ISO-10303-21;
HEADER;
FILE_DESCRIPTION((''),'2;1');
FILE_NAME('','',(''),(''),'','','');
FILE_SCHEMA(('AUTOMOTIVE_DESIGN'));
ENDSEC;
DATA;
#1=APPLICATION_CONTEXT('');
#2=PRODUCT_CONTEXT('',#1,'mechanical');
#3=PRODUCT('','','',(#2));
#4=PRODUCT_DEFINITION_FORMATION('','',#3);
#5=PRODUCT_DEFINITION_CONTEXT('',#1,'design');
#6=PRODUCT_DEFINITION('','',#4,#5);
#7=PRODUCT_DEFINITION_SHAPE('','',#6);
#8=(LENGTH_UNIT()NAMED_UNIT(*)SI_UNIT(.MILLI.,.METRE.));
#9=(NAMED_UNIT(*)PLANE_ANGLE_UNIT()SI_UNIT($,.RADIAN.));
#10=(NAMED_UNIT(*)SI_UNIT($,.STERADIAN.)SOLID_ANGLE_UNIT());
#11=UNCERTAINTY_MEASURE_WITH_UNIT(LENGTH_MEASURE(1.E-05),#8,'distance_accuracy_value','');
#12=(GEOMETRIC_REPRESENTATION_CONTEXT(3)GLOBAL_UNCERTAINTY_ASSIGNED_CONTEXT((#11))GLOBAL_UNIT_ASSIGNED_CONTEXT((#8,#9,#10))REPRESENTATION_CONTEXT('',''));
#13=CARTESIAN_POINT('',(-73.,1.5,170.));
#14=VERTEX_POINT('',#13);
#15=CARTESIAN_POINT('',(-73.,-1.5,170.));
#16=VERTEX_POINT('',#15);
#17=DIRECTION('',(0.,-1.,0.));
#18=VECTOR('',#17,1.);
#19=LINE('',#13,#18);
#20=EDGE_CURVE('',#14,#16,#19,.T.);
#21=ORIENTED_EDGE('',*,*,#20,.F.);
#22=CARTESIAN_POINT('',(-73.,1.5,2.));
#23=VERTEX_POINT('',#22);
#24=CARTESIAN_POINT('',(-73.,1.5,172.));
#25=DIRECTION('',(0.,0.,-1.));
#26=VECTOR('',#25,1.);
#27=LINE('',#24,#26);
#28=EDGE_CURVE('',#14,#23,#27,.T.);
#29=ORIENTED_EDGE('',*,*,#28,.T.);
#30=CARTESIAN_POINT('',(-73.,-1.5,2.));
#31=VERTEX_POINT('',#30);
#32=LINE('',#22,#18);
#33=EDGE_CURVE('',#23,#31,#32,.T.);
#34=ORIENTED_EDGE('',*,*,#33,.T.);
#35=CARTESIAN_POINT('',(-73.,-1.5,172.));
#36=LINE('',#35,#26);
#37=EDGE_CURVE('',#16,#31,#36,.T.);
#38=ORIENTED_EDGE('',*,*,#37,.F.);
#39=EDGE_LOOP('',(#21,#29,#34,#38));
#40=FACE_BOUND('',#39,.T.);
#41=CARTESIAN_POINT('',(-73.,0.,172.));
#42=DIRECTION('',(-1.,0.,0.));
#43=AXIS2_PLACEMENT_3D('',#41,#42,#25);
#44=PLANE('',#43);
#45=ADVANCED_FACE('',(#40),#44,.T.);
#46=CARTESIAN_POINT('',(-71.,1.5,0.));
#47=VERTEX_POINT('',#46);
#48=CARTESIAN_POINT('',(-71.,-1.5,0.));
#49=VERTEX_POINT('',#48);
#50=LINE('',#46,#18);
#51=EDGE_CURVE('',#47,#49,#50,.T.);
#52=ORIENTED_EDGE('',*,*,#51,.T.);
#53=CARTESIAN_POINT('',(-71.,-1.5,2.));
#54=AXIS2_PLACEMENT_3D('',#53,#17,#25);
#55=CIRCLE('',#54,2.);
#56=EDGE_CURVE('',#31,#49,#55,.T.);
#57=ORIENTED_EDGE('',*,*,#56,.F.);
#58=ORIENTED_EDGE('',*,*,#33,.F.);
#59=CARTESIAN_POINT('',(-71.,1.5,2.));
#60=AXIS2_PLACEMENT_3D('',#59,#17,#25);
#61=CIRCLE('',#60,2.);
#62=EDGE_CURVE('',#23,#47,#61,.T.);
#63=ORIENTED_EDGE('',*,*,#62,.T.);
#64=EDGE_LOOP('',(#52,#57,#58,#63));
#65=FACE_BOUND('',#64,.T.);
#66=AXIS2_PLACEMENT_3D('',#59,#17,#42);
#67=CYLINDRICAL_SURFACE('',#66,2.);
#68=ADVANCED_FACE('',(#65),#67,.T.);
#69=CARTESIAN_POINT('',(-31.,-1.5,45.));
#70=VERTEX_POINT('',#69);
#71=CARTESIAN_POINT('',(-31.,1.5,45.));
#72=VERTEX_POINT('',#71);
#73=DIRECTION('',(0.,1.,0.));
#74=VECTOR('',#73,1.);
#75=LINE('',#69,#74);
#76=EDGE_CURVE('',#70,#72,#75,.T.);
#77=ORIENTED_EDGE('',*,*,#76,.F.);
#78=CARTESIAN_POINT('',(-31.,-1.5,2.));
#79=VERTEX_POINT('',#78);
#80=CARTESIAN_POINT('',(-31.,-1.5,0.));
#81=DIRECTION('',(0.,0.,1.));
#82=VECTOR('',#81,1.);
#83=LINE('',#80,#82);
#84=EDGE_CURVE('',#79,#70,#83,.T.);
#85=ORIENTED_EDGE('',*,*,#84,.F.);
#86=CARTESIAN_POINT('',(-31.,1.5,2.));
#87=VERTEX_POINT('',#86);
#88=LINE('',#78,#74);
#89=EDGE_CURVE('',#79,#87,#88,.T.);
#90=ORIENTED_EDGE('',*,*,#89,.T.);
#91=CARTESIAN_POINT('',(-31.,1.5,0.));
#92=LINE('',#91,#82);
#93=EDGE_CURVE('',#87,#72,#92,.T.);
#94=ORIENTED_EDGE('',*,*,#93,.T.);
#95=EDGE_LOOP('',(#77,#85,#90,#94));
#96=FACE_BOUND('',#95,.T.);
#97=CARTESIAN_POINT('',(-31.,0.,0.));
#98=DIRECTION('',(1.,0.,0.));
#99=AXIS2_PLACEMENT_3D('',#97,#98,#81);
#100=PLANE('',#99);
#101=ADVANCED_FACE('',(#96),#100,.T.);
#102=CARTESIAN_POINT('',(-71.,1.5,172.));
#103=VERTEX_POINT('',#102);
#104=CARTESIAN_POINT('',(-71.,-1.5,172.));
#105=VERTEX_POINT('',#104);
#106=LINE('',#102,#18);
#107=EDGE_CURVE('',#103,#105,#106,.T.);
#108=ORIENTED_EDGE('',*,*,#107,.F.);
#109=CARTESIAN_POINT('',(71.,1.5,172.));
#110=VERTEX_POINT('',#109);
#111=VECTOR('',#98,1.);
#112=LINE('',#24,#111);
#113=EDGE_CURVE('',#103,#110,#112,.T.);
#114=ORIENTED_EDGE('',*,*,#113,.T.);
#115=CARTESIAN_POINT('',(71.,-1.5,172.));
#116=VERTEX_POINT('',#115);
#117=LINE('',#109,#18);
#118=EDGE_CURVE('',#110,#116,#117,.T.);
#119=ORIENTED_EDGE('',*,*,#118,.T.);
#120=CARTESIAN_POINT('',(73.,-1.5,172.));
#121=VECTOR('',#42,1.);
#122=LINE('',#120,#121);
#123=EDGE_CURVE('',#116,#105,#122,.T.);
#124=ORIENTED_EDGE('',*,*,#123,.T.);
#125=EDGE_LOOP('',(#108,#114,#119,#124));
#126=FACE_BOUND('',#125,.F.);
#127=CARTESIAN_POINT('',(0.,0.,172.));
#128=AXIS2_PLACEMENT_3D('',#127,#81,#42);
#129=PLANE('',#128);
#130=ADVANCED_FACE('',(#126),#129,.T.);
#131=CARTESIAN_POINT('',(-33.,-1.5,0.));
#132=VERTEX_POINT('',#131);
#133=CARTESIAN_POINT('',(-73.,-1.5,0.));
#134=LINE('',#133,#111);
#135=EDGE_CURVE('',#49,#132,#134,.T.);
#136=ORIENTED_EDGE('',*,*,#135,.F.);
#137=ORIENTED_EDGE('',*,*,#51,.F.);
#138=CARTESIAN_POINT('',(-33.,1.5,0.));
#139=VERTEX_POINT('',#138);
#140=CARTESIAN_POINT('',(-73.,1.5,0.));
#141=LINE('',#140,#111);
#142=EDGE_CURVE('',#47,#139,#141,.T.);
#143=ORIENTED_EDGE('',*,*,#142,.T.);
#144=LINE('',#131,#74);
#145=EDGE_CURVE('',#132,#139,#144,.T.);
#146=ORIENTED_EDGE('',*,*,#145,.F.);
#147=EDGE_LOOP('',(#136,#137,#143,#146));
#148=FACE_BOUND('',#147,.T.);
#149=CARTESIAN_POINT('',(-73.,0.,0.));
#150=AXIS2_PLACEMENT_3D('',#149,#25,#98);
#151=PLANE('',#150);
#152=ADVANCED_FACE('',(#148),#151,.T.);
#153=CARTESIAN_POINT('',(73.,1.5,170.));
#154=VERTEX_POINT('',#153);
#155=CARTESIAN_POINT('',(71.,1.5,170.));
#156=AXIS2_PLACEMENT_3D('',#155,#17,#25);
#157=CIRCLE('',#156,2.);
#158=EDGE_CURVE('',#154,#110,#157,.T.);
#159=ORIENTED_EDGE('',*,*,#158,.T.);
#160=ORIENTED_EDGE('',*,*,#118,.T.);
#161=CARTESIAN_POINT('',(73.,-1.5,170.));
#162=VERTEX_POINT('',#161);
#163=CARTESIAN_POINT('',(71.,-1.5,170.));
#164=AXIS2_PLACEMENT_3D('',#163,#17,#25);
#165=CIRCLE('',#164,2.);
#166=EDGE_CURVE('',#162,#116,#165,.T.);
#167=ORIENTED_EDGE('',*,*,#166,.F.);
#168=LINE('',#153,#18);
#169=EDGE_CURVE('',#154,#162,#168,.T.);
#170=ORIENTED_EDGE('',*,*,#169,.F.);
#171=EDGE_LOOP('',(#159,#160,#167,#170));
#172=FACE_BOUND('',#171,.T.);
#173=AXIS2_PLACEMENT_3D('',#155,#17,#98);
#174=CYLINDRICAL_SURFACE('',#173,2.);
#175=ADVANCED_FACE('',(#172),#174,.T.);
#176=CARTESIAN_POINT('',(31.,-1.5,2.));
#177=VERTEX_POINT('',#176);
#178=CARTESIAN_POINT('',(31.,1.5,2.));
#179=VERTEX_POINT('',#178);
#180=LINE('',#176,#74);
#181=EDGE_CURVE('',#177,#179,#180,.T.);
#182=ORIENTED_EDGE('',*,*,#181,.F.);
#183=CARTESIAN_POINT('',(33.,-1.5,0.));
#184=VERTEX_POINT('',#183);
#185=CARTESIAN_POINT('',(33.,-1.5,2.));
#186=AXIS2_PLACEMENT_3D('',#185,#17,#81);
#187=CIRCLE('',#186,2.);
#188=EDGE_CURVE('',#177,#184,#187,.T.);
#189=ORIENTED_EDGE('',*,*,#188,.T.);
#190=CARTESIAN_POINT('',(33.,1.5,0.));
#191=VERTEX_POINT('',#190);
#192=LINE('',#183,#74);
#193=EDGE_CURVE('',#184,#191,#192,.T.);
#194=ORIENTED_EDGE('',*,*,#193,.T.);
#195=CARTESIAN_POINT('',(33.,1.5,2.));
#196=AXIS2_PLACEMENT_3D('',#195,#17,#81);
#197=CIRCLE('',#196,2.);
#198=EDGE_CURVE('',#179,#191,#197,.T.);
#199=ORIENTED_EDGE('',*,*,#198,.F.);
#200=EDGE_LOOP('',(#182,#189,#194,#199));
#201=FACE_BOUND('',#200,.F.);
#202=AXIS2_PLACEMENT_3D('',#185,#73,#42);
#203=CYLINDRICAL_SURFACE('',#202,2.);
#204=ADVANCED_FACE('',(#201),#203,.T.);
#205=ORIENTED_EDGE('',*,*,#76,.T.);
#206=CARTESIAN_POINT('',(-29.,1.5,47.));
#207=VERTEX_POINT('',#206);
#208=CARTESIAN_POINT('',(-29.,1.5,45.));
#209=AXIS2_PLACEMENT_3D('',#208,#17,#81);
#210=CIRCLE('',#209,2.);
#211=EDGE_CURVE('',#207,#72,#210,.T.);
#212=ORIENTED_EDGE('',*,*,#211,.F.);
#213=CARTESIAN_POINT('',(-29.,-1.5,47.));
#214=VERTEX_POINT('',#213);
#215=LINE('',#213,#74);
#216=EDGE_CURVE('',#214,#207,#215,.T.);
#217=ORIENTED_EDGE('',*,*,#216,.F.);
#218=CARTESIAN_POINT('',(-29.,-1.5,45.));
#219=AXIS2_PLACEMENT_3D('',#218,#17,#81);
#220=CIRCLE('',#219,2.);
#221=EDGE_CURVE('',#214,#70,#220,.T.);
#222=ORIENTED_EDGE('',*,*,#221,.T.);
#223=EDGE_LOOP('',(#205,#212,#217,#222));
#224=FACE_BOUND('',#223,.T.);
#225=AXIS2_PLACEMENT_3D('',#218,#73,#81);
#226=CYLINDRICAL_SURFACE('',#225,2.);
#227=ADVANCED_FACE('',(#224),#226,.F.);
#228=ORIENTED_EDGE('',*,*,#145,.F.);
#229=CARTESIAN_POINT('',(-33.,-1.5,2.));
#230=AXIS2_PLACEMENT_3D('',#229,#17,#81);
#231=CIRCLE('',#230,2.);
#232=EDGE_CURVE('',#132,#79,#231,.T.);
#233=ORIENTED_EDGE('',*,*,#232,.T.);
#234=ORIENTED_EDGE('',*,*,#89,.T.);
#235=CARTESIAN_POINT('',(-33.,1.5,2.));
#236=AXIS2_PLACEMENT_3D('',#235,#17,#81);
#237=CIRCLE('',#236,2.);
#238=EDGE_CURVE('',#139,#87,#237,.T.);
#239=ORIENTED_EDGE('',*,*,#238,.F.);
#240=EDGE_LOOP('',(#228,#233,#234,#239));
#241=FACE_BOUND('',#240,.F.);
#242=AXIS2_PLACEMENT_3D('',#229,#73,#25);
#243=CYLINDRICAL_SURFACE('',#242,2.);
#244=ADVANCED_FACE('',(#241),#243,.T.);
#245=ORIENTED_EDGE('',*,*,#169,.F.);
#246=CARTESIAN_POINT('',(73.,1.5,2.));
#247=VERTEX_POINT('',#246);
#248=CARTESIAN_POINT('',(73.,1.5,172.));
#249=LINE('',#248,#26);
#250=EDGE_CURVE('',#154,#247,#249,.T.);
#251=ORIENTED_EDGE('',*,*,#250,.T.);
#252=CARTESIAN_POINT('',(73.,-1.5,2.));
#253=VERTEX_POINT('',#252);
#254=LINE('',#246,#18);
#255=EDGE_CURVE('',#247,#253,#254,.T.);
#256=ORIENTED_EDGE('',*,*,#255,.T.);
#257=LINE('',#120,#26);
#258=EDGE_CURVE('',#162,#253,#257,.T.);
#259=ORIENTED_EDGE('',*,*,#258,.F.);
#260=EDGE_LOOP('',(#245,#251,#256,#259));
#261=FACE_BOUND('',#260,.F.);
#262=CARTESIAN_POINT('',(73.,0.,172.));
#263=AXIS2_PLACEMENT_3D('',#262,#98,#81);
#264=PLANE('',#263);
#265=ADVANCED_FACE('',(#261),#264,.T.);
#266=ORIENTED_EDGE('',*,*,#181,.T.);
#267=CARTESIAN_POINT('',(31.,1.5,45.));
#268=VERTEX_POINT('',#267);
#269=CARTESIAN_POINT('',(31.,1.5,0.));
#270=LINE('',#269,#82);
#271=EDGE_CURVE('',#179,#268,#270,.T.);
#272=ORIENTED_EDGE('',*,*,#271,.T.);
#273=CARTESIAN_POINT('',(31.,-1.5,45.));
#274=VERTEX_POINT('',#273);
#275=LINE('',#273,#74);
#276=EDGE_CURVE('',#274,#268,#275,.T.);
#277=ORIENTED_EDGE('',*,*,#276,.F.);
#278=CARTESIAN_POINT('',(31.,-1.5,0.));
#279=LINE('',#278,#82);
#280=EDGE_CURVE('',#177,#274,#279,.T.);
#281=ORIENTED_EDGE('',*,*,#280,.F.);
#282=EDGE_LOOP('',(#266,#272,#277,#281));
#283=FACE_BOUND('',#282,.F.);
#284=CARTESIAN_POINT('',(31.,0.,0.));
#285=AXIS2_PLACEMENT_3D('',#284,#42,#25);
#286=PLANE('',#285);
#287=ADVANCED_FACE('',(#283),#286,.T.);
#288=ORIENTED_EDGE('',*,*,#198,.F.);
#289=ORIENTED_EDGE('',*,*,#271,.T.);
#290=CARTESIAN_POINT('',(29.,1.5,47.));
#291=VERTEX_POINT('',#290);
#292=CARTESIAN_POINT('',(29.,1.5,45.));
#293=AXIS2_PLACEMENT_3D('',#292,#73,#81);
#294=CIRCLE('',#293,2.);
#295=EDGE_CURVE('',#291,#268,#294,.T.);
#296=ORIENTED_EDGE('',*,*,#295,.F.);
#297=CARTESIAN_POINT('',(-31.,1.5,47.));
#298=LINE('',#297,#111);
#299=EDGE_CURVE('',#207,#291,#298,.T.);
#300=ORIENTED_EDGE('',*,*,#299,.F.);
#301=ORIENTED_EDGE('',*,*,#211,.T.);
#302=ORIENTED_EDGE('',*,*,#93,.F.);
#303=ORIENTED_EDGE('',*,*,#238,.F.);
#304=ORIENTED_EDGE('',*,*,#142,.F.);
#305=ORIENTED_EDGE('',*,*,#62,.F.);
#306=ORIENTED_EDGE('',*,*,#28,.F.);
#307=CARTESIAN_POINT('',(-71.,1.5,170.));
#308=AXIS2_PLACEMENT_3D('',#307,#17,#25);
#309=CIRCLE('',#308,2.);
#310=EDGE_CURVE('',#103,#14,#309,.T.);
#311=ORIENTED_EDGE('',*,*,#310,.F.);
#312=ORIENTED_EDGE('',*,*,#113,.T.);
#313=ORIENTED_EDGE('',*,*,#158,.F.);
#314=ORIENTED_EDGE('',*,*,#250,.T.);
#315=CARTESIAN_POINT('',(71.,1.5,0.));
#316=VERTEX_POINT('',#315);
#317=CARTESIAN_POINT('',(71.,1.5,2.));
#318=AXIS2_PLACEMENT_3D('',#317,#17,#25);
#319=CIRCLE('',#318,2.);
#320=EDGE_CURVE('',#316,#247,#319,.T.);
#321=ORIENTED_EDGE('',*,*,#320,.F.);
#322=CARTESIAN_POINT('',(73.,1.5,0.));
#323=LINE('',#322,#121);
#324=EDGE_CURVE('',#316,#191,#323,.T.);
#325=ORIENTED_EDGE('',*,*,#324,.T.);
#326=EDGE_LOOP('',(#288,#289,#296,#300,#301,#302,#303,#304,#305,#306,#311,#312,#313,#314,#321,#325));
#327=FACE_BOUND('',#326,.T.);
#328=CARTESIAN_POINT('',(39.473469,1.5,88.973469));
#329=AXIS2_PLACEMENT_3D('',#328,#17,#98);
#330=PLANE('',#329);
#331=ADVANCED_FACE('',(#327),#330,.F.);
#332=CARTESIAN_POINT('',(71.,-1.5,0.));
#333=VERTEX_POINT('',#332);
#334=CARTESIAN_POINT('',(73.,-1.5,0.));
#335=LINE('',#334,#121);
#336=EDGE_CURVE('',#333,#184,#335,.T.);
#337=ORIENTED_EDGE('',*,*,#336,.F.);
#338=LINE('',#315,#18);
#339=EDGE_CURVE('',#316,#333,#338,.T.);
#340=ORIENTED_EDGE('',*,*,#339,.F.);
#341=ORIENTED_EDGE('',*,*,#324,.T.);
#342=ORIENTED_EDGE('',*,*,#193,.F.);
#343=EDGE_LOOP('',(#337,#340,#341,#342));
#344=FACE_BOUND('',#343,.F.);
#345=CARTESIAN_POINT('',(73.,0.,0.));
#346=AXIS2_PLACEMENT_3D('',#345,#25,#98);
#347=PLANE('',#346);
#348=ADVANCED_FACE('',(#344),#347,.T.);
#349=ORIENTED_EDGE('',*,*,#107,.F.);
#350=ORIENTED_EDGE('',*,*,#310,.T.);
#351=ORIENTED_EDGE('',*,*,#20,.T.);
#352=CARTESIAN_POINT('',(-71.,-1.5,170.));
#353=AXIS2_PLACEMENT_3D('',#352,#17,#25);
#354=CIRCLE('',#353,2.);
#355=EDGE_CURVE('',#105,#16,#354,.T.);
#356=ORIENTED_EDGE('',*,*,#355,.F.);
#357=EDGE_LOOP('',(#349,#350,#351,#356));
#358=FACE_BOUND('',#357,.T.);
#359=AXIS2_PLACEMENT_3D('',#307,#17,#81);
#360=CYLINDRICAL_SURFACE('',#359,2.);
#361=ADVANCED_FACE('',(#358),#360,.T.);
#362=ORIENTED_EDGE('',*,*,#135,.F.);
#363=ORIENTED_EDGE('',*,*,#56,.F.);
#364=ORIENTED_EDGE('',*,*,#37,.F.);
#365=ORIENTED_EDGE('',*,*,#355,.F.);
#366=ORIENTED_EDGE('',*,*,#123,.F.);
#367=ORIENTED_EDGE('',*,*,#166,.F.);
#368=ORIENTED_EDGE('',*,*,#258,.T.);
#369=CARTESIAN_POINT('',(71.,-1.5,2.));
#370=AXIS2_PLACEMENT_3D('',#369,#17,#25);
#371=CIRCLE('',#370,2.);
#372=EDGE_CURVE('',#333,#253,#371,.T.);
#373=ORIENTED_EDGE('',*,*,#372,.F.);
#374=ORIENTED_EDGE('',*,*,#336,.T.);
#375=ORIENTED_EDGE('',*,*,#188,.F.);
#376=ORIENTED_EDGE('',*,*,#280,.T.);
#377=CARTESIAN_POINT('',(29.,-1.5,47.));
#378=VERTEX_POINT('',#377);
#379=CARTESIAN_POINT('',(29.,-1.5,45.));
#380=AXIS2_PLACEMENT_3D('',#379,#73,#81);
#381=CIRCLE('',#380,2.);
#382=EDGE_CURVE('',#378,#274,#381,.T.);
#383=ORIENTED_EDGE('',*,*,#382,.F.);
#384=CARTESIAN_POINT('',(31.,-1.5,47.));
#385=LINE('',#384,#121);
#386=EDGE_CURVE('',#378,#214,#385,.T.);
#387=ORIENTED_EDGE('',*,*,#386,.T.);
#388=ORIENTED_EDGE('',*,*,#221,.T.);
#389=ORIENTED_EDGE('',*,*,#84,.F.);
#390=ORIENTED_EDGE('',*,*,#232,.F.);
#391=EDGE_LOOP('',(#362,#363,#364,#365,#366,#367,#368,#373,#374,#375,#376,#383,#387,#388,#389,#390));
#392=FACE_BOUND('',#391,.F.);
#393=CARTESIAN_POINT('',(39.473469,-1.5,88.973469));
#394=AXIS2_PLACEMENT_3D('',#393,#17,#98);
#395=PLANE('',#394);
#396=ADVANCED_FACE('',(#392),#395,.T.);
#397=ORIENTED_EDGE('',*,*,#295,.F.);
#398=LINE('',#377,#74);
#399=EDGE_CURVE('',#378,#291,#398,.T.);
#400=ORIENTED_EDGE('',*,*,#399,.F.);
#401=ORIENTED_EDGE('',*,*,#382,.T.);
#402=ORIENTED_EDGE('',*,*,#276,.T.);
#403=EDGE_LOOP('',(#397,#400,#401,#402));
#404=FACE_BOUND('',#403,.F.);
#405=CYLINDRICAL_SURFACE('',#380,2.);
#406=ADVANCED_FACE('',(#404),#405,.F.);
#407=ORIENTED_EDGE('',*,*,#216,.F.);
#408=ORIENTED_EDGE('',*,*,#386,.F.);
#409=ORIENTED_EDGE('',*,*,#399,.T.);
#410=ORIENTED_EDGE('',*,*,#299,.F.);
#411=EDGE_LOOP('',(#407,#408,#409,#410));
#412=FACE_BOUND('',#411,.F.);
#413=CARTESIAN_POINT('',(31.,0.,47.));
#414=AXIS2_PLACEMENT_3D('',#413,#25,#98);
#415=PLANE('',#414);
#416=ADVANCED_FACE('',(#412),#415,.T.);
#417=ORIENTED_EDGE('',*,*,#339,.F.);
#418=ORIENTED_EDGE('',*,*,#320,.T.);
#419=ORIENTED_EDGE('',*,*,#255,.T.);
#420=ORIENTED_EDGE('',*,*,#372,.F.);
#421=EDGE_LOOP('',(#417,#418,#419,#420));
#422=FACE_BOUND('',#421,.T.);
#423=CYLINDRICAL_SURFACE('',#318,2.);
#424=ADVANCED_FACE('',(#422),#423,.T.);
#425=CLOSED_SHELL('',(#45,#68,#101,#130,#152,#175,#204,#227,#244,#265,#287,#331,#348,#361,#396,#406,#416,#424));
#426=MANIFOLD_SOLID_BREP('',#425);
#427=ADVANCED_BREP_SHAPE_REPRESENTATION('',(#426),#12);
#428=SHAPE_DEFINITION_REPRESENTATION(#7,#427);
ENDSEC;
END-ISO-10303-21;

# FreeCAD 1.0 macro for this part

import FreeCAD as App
import Part
import Sketcher

V = App.Vector


def edges_at(feature, points):
    """Names of the edges that pass closest to the given points."""
    edges = feature.Shape.Edges
    near = lambda p: min(range(len(edges)), key=lambda i: edges[i].distToShape(Part.Vertex(*p))[0])
    return sorted({f"Edge{near(p) + 1}" for p in points})


def add_polygon(sketch, points):
    """Adds a closed chain of lines whose ends are joined by coincident constraints."""
    first, n = sketch.GeometryCount, len(points)
    for a, b in zip(points, points[1:] + points[:1]):
        sketch.addGeometry(Part.LineSegment(App.Vector(*a, 0), App.Vector(*b, 0)), False)
    for i in range(n):
        sketch.addConstraint(Sketcher.Constraint("Coincident", first + i, 2, first + (i + 1) % n, 1))

doc = App.newDocument("Part")
body = doc.addObject("PartDesign::Body", "Body")

# Sketch on XZ plane
sketch1 = body.newObject("Sketcher::SketchObject", "Sketch")
sketch1.AttachmentSupport = (doc.getObject("XZ_Plane"), [""])
sketch1.MapMode = "FlatFace"
add_polygon(sketch1, [(0, 47), (0, 172), (-73, 172), (-73, 0), (-31, 0), (-31, 47)])  # lines 0-5
sketch1.addConstraint(Sketcher.Constraint("Vertical", 0))
sketch1.addConstraint(Sketcher.Constraint("Horizontal", 1))
sketch1.addConstraint(Sketcher.Constraint("Vertical", 2))
sketch1.addConstraint(Sketcher.Constraint("Horizontal", 3))
sketch1.addConstraint(Sketcher.Constraint("Vertical", 4))
sketch1.addConstraint(Sketcher.Constraint("Horizontal", 5))
sketch1.addConstraint(Sketcher.Constraint("PointOnObject", 0, 2, -2))
sketch1.addConstraint(Sketcher.Constraint("PointOnObject", 2, 2, -1))
sketch1.addConstraint(Sketcher.Constraint("DistanceX", 1, 2, 1, 1, 73.0))
sketch1.addConstraint(Sketcher.Constraint("DistanceX", 3, 1, 3, 2, 42.0))
sketch1.addConstraint(Sketcher.Constraint("DistanceY", 0, 1, 0, 2, 125.0))
sketch1.addConstraint(Sketcher.Constraint("DistanceY", 2, 2, 2, 1, 172.0))
pad1 = body.newObject("PartDesign::Pad", "Pad")
pad1.Profile = sketch1
pad1.Length = 3
pad1.Midplane = True
body2 = doc.addObject("PartDesign::Body", "Body001")
doc.recompute()

body2.BaseFeature = body
doc.recompute()

mirroring = doc.addObject("Part::Mirroring", "Mirroring")
mirroring.Source = body
mirroring.Base = V(0, 0, 0)
mirroring.Normal = V(1, 0, 0)
body3 = doc.addObject("PartDesign::Body", "Body002")
body3.BaseFeature = mirroring
boolean = body2.newObject("PartDesign::Boolean", "Boolean")
boolean.Type = "Fuse"
boolean.addObjects([body3])
doc.recompute()

fillet = body2.newObject("PartDesign::Fillet", "Fillet")
fillet.Base = (boolean, edges_at(boolean, [
    (73, 0, 172),
    (-73, 0, 172),
    (-31, 0, 0),
    (-73, 0, 0),
    (-31, 0, 47),
    (31, 0, 0),
    (31, 0, 47),
    (73, 0, 0),
]))
fillet.Radius = 2
mirroring.Visibility = False

doc.recompute()
